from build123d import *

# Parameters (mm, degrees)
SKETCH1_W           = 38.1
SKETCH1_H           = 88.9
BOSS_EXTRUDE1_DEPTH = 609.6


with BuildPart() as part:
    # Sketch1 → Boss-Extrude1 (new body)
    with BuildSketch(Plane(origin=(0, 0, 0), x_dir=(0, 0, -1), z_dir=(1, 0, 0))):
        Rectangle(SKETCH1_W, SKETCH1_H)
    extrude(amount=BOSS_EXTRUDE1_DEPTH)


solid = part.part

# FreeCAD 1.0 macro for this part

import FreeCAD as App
import Part
import Sketcher

V = App.Vector
Q = App.Units.Quantity

doc = App.newDocument("Part")
body = doc.addObject("PartDesign::Body", "Body")

# Sketch on YZ plane
sketch1 = body.newObject("Sketcher::SketchObject", "Sketch")
sketch1.AttachmentSupport = (doc.getObject("YZ_Plane"), [""])
sketch1.MapMode = "FlatFace"
sketch1.addGeometry([
    Part.LineSegment(V(44, 19, 0), V(-44, 19, 0)),
    Part.LineSegment(V(-44, 19, 0), V(-44, -19, 0)),
    Part.LineSegment(V(-44, -19, 0), V(44, -19, 0)),
    Part.LineSegment(V(44, -19, 0), V(44, 19, 0)),
], False)
sketch1.addConstraint([
    Sketcher.Constraint("Coincident", 0, 2, 1, 1),
    Sketcher.Constraint("Coincident", 1, 2, 2, 1),
    Sketcher.Constraint("Coincident", 2, 2, 3, 1),
    Sketcher.Constraint("Coincident", 3, 2, 0, 1),
    Sketcher.Constraint("Horizontal", 0),
    Sketcher.Constraint("Vertical", 1),
    Sketcher.Constraint("Horizontal", 2),
    Sketcher.Constraint("Vertical", 3),
    Sketcher.Constraint("Symmetric", 0, 2, 2, 2, -1, 1),
    Sketcher.Constraint("DistanceX", 0, 2, 0, 1, Q("3.5 in")),
    Sketcher.Constraint("DistanceY", 1, 2, 1, 1, Q("1.5 in")),
])
pad1 = body.newObject("PartDesign::Pad", "Pad")
pad1.Profile = sketch1
pad1.Length = Q("24 in")

doc.recompute()
